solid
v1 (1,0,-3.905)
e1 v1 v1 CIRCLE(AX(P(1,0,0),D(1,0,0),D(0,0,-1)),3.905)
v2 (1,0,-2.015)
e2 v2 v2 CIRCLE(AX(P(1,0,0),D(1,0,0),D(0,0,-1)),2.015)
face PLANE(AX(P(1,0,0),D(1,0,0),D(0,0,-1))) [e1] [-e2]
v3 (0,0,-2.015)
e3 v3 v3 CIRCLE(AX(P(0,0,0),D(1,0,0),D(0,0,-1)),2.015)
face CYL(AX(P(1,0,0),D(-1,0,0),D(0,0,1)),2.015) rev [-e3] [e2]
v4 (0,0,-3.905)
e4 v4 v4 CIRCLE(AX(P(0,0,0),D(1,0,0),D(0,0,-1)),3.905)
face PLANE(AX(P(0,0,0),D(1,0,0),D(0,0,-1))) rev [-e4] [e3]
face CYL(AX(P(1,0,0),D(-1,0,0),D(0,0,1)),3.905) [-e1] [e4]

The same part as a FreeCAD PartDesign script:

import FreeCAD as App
import Part
import Sketcher

doc = App.newDocument("Part")
body = doc.addObject("PartDesign::Body", "Body")

# Sketch on YZ plane
sketch1 = body.newObject("Sketcher::SketchObject", "Sketch")
sketch1.AttachmentSupport = (doc.getObject("YZ_Plane"), [""])
sketch1.MapMode = "FlatFace"
sketch1.addGeometry(Part.Circle(App.Vector(0, 0, 0), App.Vector(0, 0, 1), 3.9), False)
sketch1.addGeometry(Part.Circle(App.Vector(0, 0, 0), App.Vector(0, 0, 1), 2), False)
sketch1.addConstraint(Sketcher.Constraint("Coincident", 0, 3, -1, 1))
sketch1.addConstraint(Sketcher.Constraint("Coincident", 1, 3, -1, 1))
sketch1.addConstraint(Sketcher.Constraint("Diameter", 0, 7.81))
sketch1.addConstraint(Sketcher.Constraint("Diameter", 1, 4.03))
pad1 = body.newObject("PartDesign::Pad", "Pad")
pad1.Profile = sketch1
pad1.Length = 1

doc.recompute()
